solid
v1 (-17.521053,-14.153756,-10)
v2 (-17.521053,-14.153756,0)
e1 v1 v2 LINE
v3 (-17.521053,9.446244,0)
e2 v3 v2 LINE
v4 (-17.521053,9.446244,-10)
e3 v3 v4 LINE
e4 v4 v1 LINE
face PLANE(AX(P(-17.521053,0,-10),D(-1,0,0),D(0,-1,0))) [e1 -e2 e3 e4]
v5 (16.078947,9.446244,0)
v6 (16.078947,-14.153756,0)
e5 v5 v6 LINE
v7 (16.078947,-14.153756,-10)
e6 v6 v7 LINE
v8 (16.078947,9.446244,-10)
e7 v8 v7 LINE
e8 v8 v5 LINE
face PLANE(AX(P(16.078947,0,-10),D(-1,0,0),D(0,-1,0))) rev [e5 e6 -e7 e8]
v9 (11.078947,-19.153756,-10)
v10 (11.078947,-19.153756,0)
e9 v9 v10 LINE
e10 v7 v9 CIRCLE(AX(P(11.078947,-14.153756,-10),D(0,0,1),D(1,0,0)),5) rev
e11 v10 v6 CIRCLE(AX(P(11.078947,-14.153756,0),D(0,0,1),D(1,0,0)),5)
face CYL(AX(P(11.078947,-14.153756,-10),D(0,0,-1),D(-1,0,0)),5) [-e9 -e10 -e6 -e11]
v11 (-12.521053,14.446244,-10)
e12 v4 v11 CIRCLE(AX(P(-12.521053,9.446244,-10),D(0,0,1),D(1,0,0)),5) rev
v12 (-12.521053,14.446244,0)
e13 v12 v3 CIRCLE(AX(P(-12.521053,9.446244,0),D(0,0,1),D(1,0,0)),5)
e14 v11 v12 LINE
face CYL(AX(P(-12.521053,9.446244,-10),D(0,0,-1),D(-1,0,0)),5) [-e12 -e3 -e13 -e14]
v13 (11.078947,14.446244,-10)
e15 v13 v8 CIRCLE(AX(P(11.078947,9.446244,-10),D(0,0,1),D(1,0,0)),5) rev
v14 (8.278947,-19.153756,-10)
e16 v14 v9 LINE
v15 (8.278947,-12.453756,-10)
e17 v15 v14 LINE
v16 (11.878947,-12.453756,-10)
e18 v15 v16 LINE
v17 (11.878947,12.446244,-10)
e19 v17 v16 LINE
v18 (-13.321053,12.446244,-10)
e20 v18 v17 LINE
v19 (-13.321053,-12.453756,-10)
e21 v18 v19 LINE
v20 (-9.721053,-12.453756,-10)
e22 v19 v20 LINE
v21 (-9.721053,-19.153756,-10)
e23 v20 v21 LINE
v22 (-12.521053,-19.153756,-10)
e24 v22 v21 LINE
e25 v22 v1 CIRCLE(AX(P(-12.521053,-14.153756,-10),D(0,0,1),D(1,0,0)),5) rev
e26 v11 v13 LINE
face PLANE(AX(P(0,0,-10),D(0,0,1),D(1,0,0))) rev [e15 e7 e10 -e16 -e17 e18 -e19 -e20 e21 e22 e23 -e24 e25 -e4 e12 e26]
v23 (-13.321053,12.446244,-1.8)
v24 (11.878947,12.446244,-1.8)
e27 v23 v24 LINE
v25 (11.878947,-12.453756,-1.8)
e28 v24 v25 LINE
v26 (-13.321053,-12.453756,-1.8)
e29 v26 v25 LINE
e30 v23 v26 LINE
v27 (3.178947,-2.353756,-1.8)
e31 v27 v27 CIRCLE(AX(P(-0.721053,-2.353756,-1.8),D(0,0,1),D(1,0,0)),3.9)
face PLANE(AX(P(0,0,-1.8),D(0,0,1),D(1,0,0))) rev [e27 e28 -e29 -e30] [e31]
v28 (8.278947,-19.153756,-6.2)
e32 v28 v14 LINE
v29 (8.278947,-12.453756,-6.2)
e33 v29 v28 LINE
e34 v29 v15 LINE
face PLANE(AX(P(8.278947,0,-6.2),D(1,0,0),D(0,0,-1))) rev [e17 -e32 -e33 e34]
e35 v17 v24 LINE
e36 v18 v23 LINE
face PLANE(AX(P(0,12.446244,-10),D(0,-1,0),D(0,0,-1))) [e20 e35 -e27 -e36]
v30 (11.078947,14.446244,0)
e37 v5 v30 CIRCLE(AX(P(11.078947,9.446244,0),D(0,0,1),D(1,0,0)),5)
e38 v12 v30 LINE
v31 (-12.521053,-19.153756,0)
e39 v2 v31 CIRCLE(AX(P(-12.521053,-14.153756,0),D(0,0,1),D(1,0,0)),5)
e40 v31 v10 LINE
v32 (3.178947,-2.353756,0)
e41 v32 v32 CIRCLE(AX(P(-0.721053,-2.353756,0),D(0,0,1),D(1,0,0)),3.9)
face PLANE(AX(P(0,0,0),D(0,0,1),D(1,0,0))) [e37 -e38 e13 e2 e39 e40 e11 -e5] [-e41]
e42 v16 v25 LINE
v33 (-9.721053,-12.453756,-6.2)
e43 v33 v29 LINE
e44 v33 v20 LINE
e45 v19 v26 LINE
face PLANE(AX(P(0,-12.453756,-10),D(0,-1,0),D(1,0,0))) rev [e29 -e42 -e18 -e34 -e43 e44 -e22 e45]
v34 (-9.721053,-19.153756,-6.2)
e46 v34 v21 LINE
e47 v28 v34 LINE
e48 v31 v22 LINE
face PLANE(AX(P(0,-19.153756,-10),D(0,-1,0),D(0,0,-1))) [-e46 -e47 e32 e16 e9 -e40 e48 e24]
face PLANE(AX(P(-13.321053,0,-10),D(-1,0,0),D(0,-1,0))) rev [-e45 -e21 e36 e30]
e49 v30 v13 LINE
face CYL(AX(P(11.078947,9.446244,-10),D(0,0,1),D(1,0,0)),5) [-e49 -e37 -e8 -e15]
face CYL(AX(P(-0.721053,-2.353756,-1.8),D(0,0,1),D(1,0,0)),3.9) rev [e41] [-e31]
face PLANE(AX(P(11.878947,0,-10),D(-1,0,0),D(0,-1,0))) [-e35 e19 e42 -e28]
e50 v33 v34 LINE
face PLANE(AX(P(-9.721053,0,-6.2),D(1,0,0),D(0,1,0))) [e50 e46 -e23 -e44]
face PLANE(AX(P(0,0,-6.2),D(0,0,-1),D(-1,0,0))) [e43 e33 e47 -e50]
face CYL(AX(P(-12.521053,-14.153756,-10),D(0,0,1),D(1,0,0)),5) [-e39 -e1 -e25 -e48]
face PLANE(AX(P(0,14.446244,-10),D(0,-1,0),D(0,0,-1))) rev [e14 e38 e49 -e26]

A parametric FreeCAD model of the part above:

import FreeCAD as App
import Part
import Sketcher
Q = App.Units.Quantity


def edges_at(feature, points):
    """Names of the edges that pass closest to the given points."""
    edges = feature.Shape.Edges
    near = lambda p: min(range(len(edges)), key=lambda i: edges[i].distToShape(Part.Vertex(*p))[0])
    return sorted({f"Edge{near(p) + 1}" for p in points})


def add_polygon(sketch, points):
    """Adds a closed chain of lines whose ends are joined by coincident constraints."""
    first, n = sketch.GeometryCount, len(points)
    for a, b in zip(points, points[1:] + points[:1]):
        sketch.addGeometry(Part.LineSegment(App.Vector(*a, 0), App.Vector(*b, 0)), False)
    for i in range(n):
        sketch.addConstraint(Sketcher.Constraint("Coincident", first + i, 2, first + (i + 1) % n, 1))

doc = App.newDocument("Part")
body = doc.addObject("PartDesign::Body", "Body")

sketch1 = doc.addObject("Sketcher::SketchObject", "Sketch")
body.addObject(sketch1)
sketch1.AttachmentSupport = (doc.XY_Plane, [""])
sketch1.MapMode = "FlatFace"
add_polygon(sketch1, [(-13.3, 12.4), (-13.3, -12.5), (11.9, -12.5), (11.9, 12.4)])
sketch1.addGeometry(Part.Circle(App.Vector(-0.7, -2.4, 0), App.Vector(0, 0, 1), 3.9), False)
sketch1.addConstraint(Sketcher.Constraint("Vertical", 0))
sketch1.addConstraint(Sketcher.Constraint("Horizontal", 1))
sketch1.addConstraint(Sketcher.Constraint("Vertical", 2))
sketch1.addConstraint(Sketcher.Constraint("Horizontal", 3))
sketch1.addConstraint(Sketcher.Constraint("Diameter", 4, Q("7.8 mm")))
sketch1.addConstraint(Sketcher.Constraint("DistanceX", 1, 1, 1, 2, Q("25.2 mm")))
sketch1.addConstraint(Sketcher.Constraint("DistanceY", 0, 2, 0, 1, Q("24.9 mm")))
sketch1.addConstraint(Sketcher.Constraint("DistanceX", 0, 2, 4, 3, Q("12.6 mm")))
sketch1.addConstraint(Sketcher.Constraint("DistanceY", 0, 2, 4, 3, Q("10.1 mm")))
sketch1.addConstraint(Sketcher.Constraint("DistanceX", 4, 3, -1, 1, Q("0.721053 mm")))
sketch1.addConstraint(Sketcher.Constraint("DistanceY", 4, 3, -1, 1, Q("2.353756 mm")))
pad1 = doc.addObject("PartDesign::Pad", "Pad")
body.addObject(pad1)
pad1.Profile = sketch1
pad1.Length = 1.8
pad1.Reversed = True

sketch2 = doc.addObject("Sketcher::SketchObject", "Sketch001")
body.addObject(sketch2)
sketch2.AttachmentSupport = (doc.XY_Plane, [""])
sketch2.MapMode = "FlatFace"
add_polygon(sketch2, [(-18, 14), (-18, -19), (16, -19), (16, 14)])
add_polygon(sketch2, [(12, -12), (-13, -12), (-13, 12), (12, 12)])
sketch2.addConstraint(Sketcher.Constraint("Vertical", 0))
sketch2.addConstraint(Sketcher.Constraint("Horizontal", 1))
sketch2.addConstraint(Sketcher.Constraint("Vertical", 2))
sketch2.addConstraint(Sketcher.Constraint("Horizontal", 3))
sketch2.addConstraint(Sketcher.Constraint("Horizontal", 4))
sketch2.addConstraint(Sketcher.Constraint("Vertical", 5))
sketch2.addConstraint(Sketcher.Constraint("Horizontal", 6))
sketch2.addConstraint(Sketcher.Constraint("Vertical", 7))
sketch2.addConstraint(Sketcher.Constraint("Equal", 3, 0))
sketch2.addConstraint(Sketcher.Constraint("DistanceX", 1, 1, 1, 2, Q("33.6 mm")))
sketch2.addConstraint(Sketcher.Constraint("DistanceX", 4, 2, 4, 1, Q("25.2 mm")))
sketch2.addConstraint(Sketcher.Constraint("DistanceY", 5, 1, 5, 2, Q("24.9 mm")))
sketch2.addConstraint(Sketcher.Constraint("DistanceY", 5, 2, 3, 2, Q("2 mm")))
sketch2.addConstraint(Sketcher.Constraint("DistanceX", 0, 2, 4, 2, Q("4.2 mm")))
sketch2.addConstraint(Sketcher.Constraint("DistanceX", 0, 2, -1, 1, Q("17.521053 mm")))
sketch2.addConstraint(Sketcher.Constraint("DistanceY", 0, 2, -1, 1, Q("19.153756 mm")))
pad2 = doc.addObject("PartDesign::Pad", "Pad001")
body.addObject(pad2)
pad2.Profile = sketch2
pad2.Length = 10
pad2.Reversed = True
doc.recompute()

fillet = doc.addObject("PartDesign::Fillet", "Fillet")
body.addObject(fillet)
fillet.Base = (pad2, edges_at(pad2, [
    (16.079, 14.446, -5),
    (16.079, -19.154, -5),
    (-17.521, -19.154, -5),
    (-17.521, 14.446, -5),
]))
fillet.Radius = 5

sketch3 = doc.addObject("Sketcher::SketchObject", "Sketch002")
body.addObject(sketch3)
sketch3.AttachmentSupport = (doc.XY_Plane, [""])
sketch3.MapMode = "FlatFace"
sketch3.AttachmentOffset = App.Placement(App.Vector(0, 0, -10), App.Rotation())
add_polygon(sketch3, [(8, -12), (8, -19), (-10, -19), (-10, -12)])
sketch3.addConstraint(Sketcher.Constraint("Vertical", 0))
sketch3.addConstraint(Sketcher.Constraint("Horizontal", 1))
sketch3.addConstraint(Sketcher.Constraint("Vertical", 2))
sketch3.addConstraint(Sketcher.Constraint("Horizontal", 3))
sketch3.addConstraint(Sketcher.Constraint("DistanceX", 1, 2, 1, 1, Q("18 mm")))
sketch3.addConstraint(Sketcher.Constraint("DistanceY", 0, 2, 0, 1, Q("6.7 mm")))
sketch3.addConstraint(Sketcher.Constraint("DistanceX", -1, 1, 0, 2, Q("8.278947 mm")))
sketch3.addConstraint(Sketcher.Constraint("DistanceY", 0, 2, -1, 1, Q("19.153756 mm")))
pocket1 = doc.addObject("PartDesign::Pocket", "Pocket")
body.addObject(pocket1)
pocket1.Profile = sketch3
pocket1.Length = 3.8
pocket1.Reversed = True

doc.recompute()
